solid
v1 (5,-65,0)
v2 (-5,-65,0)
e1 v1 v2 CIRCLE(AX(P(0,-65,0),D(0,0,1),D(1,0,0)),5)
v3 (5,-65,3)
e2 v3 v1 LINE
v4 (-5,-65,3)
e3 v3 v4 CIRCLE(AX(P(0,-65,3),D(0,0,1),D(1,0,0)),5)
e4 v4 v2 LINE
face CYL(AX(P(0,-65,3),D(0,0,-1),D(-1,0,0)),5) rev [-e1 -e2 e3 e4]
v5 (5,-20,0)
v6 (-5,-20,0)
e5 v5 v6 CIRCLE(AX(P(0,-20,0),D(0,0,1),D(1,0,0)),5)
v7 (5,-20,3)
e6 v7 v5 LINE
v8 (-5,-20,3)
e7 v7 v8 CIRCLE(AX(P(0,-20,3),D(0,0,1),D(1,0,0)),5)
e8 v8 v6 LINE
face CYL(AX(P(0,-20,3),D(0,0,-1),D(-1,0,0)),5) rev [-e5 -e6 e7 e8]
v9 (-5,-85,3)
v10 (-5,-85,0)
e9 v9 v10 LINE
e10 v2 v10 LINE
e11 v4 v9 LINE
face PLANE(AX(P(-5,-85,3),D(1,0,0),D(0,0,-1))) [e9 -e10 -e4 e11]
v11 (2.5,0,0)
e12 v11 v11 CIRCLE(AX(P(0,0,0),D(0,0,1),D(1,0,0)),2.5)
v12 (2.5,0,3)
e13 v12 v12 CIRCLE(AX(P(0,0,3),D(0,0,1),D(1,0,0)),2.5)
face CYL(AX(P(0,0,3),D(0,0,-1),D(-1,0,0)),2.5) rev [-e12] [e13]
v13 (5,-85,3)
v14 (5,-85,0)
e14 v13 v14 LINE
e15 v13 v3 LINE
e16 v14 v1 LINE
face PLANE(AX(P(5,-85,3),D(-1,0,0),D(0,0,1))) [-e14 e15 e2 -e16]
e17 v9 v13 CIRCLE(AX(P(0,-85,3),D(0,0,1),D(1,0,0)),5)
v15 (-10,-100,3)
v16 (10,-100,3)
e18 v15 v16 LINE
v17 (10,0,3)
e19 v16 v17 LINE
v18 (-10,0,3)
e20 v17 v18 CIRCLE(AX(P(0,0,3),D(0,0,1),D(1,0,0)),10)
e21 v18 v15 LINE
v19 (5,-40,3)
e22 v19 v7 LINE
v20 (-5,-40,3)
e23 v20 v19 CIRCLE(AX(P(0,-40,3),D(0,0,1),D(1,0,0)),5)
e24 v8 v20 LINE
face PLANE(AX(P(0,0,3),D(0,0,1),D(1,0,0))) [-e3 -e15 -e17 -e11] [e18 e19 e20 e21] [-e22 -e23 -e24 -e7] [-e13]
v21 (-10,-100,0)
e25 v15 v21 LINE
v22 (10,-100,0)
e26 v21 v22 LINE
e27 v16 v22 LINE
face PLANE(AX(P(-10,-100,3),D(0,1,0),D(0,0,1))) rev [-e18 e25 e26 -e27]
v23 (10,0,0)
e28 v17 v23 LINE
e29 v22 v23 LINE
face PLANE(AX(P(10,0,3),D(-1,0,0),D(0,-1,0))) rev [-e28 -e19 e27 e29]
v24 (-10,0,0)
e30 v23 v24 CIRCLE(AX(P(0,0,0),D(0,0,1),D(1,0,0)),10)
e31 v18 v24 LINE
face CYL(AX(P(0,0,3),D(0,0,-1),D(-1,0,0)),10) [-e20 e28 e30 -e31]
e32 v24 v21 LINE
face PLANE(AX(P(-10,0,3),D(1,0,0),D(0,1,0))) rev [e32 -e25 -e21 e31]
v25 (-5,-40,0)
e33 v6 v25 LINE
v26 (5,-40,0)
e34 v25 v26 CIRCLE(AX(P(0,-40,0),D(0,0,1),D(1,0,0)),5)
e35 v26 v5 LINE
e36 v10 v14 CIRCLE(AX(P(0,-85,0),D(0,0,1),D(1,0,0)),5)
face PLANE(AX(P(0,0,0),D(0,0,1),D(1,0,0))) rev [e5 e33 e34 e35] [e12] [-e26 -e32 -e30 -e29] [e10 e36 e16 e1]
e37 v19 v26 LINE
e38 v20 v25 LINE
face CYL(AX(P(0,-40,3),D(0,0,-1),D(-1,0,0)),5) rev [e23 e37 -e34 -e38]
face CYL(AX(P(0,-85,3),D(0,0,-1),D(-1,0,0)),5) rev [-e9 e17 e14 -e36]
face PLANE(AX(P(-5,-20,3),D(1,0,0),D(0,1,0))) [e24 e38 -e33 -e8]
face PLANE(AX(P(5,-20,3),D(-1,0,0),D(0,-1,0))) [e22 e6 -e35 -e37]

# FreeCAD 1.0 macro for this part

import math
import FreeCAD as App
import Part
import Sketcher
from FreeCAD import Vector

doc = App.newDocument("Part")
body = doc.addObject("PartDesign::Body", "Body")

sketch1 = body.newObject("Sketcher::SketchObject", "Sketch")
sketch1.AttachmentSupport = (doc.getObject("XY_Plane"), [""])
sketch1.MapMode = "FlatFace"
sketch1.addGeometry(Part.LineSegment(Vector(10, -100, 0), Vector(10, 0, 0)), False)
sketch1.addGeometry(Part.ArcOfCircle(Part.Circle(Vector(0, 0, 0), Vector(0, 0, 1), 10), math.radians(0), math.radians(180)), False)
sketch1.addGeometry(Part.LineSegment(Vector(-10, 0, 0), Vector(-10, -100, 0)), False)
sketch1.addGeometry(Part.LineSegment(Vector(-10, -100, 0), Vector(10, -100, 0)), False)
sketch1.addGeometry(Part.LineSegment(Vector(-5, -85, 0), Vector(-5, -65, 0)), False)
sketch1.addGeometry(Part.ArcOfCircle(Part.Circle(Vector(0, -65, 0), Vector(0, 0, 1), 5), math.radians(0), math.radians(180)), False)
sketch1.addGeometry(Part.LineSegment(Vector(5, -65, 0), Vector(5, -85, 0)), False)
sketch1.addGeometry(Part.ArcOfCircle(Part.Circle(Vector(0, -85, 0), Vector(0, 0, 1), 5), math.radians(180), math.radians(360)), False)
sketch1.addGeometry(Part.LineSegment(Vector(5, -20, 0), Vector(5, -40, 0)), False)
sketch1.addGeometry(Part.ArcOfCircle(Part.Circle(Vector(0, -40, 0), Vector(0, 0, 1), 5), math.radians(180), math.radians(360)), False)
sketch1.addGeometry(Part.LineSegment(Vector(-5, -40, 0), Vector(-5, -20, 0)), False)
sketch1.addGeometry(Part.ArcOfCircle(Part.Circle(Vector(0, -20, 0), Vector(0, 0, 1), 5), math.radians(0), math.radians(180)), False)
sketch1.addGeometry(Part.Circle(Vector(0, 0, 0), Vector(0, 0, 1), 2.5), False)
sketch1.addConstraint(Sketcher.Constraint("Tangent", 0, 2, 1, 1))
sketch1.addConstraint(Sketcher.Constraint("Tangent", 1, 2, 2, 1))
sketch1.addConstraint(Sketcher.Constraint("Coincident", 2, 2, 3, 1))
sketch1.addConstraint(Sketcher.Constraint("Coincident", 3, 2, 0, 1))
sketch1.addConstraint(Sketcher.Constraint("Tangent", 4, 2, 5, 2))
sketch1.addConstraint(Sketcher.Constraint("Tangent", 5, 1, 6, 1))
sketch1.addConstraint(Sketcher.Constraint("Tangent", 6, 2, 7, 2))
sketch1.addConstraint(Sketcher.Constraint("Tangent", 7, 1, 4, 1))
sketch1.addConstraint(Sketcher.Constraint("Tangent", 8, 2, 9, 2))
sketch1.addConstraint(Sketcher.Constraint("Tangent", 9, 1, 10, 1))
sketch1.addConstraint(Sketcher.Constraint("Tangent", 10, 2, 11, 2))
sketch1.addConstraint(Sketcher.Constraint("Tangent", 11, 1, 8, 1))
sketch1.addConstraint(Sketcher.Constraint("Vertical", 0))
sketch1.addConstraint(Sketcher.Constraint("Vertical", 2))
sketch1.addConstraint(Sketcher.Constraint("Horizontal", 3))
sketch1.addConstraint(Sketcher.Constraint("Vertical", 4))
sketch1.addConstraint(Sketcher.Constraint("Vertical", 6))
sketch1.addConstraint(Sketcher.Constraint("Vertical", 8))
sketch1.addConstraint(Sketcher.Constraint("Vertical", 10))
sketch1.addConstraint(Sketcher.Constraint("Coincident", 1, 3, -1, 1))
sketch1.addConstraint(Sketcher.Constraint("Coincident", 12, 3, -1, 1))
sketch1.addConstraint(Sketcher.Constraint("Equal", 7, 9))
sketch1.addConstraint(Sketcher.Constraint("PointOnObject", 5, 3, -2))
sketch1.addConstraint(Sketcher.Constraint("PointOnObject", 9, 3, -2))
sketch1.addConstraint(Sketcher.Constraint("Equal", 3, 4))
sketch1.addConstraint(Sketcher.Constraint("Equal", 6, 8))
sketch1.addConstraint(Sketcher.Constraint("Diameter", 12, 5.0))
sketch1.addConstraint(Sketcher.Constraint("Radius", 1, 10.0))
sketch1.addConstraint(Sketcher.Constraint("Radius", 5, 5.0))
sketch1.addConstraint(Sketcher.Constraint("DistanceY", 0, 1, 0, 2, 100.0))
sketch1.addConstraint(Sketcher.Constraint("DistanceY", 5, 3, -1, 1, 65.0))
sketch1.addConstraint(Sketcher.Constraint("DistanceY", 9, 3, -1, 1, 40.0))
pad1 = body.newObject("PartDesign::Pad", "Pad")
pad1.Profile = sketch1
pad1.Length = 3

doc.recompute()
